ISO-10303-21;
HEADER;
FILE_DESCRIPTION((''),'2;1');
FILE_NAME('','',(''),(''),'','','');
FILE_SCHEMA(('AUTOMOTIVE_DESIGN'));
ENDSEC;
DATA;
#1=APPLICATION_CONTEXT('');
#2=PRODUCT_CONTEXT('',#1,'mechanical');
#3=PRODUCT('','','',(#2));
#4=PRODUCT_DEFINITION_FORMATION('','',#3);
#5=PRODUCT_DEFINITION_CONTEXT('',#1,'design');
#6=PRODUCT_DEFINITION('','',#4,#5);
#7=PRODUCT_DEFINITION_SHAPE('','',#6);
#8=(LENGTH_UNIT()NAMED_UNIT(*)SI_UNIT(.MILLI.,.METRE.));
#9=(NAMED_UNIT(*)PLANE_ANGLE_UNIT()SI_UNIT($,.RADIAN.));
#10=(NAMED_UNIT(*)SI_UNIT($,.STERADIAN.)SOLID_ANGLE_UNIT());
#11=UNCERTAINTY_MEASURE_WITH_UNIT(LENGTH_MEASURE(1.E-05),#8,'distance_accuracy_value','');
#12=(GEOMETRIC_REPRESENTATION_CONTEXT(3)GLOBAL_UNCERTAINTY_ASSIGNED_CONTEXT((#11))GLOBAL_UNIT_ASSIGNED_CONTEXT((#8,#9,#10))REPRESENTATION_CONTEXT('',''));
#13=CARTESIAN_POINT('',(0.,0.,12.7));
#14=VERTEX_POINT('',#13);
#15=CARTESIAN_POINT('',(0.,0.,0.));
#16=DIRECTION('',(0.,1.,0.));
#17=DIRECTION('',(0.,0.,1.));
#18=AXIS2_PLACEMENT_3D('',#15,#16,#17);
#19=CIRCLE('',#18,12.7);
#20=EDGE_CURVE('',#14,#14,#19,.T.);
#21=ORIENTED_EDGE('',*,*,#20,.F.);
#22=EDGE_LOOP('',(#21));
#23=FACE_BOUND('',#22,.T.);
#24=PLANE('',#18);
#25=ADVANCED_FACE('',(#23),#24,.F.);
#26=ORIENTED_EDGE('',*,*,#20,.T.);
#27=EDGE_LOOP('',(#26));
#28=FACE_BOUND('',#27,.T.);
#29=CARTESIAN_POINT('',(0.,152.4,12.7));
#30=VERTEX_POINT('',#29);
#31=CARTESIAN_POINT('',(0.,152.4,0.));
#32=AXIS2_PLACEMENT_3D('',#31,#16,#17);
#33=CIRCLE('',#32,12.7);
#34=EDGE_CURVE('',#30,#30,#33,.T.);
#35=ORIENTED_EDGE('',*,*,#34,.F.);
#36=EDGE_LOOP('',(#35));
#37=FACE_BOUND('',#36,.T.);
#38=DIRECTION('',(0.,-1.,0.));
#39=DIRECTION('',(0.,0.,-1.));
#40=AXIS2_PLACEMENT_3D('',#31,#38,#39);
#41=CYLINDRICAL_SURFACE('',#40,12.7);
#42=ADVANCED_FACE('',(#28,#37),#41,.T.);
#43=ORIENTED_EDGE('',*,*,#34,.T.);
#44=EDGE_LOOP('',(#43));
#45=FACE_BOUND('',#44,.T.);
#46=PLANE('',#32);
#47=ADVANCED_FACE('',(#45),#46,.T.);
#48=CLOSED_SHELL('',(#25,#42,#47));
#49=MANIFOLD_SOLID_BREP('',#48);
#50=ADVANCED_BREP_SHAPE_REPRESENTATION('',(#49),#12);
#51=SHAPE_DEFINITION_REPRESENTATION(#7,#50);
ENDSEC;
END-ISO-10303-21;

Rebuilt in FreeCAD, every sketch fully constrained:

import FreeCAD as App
import Part
import Sketcher
Q = App.Units.Quantity

doc = App.newDocument("Part")
body = doc.addObject("PartDesign::Body", "Body")

# Sketch on XZ plane
sketch1 = body.newObject("Sketcher::SketchObject", "Sketch")
sketch1.AttachmentSupport = (doc.getObject("XZ_Plane"), [""])
sketch1.MapMode = "FlatFace"
sketch1.addGeometry(Part.Circle(App.Vector(0, 0, 0), App.Vector(0, 0, 1), 13), False)
sketch1.addConstraint([
    Sketcher.Constraint("Coincident", 0, 3, -1, 1),
    Sketcher.Constraint("Diameter", 0, Q("1 in")),
])
pad1 = body.newObject("PartDesign::Pad", "Pad")
pad1.Profile = sketch1
pad1.Length = Q("6 in")
pad1.Reversed = True

doc.recompute()
